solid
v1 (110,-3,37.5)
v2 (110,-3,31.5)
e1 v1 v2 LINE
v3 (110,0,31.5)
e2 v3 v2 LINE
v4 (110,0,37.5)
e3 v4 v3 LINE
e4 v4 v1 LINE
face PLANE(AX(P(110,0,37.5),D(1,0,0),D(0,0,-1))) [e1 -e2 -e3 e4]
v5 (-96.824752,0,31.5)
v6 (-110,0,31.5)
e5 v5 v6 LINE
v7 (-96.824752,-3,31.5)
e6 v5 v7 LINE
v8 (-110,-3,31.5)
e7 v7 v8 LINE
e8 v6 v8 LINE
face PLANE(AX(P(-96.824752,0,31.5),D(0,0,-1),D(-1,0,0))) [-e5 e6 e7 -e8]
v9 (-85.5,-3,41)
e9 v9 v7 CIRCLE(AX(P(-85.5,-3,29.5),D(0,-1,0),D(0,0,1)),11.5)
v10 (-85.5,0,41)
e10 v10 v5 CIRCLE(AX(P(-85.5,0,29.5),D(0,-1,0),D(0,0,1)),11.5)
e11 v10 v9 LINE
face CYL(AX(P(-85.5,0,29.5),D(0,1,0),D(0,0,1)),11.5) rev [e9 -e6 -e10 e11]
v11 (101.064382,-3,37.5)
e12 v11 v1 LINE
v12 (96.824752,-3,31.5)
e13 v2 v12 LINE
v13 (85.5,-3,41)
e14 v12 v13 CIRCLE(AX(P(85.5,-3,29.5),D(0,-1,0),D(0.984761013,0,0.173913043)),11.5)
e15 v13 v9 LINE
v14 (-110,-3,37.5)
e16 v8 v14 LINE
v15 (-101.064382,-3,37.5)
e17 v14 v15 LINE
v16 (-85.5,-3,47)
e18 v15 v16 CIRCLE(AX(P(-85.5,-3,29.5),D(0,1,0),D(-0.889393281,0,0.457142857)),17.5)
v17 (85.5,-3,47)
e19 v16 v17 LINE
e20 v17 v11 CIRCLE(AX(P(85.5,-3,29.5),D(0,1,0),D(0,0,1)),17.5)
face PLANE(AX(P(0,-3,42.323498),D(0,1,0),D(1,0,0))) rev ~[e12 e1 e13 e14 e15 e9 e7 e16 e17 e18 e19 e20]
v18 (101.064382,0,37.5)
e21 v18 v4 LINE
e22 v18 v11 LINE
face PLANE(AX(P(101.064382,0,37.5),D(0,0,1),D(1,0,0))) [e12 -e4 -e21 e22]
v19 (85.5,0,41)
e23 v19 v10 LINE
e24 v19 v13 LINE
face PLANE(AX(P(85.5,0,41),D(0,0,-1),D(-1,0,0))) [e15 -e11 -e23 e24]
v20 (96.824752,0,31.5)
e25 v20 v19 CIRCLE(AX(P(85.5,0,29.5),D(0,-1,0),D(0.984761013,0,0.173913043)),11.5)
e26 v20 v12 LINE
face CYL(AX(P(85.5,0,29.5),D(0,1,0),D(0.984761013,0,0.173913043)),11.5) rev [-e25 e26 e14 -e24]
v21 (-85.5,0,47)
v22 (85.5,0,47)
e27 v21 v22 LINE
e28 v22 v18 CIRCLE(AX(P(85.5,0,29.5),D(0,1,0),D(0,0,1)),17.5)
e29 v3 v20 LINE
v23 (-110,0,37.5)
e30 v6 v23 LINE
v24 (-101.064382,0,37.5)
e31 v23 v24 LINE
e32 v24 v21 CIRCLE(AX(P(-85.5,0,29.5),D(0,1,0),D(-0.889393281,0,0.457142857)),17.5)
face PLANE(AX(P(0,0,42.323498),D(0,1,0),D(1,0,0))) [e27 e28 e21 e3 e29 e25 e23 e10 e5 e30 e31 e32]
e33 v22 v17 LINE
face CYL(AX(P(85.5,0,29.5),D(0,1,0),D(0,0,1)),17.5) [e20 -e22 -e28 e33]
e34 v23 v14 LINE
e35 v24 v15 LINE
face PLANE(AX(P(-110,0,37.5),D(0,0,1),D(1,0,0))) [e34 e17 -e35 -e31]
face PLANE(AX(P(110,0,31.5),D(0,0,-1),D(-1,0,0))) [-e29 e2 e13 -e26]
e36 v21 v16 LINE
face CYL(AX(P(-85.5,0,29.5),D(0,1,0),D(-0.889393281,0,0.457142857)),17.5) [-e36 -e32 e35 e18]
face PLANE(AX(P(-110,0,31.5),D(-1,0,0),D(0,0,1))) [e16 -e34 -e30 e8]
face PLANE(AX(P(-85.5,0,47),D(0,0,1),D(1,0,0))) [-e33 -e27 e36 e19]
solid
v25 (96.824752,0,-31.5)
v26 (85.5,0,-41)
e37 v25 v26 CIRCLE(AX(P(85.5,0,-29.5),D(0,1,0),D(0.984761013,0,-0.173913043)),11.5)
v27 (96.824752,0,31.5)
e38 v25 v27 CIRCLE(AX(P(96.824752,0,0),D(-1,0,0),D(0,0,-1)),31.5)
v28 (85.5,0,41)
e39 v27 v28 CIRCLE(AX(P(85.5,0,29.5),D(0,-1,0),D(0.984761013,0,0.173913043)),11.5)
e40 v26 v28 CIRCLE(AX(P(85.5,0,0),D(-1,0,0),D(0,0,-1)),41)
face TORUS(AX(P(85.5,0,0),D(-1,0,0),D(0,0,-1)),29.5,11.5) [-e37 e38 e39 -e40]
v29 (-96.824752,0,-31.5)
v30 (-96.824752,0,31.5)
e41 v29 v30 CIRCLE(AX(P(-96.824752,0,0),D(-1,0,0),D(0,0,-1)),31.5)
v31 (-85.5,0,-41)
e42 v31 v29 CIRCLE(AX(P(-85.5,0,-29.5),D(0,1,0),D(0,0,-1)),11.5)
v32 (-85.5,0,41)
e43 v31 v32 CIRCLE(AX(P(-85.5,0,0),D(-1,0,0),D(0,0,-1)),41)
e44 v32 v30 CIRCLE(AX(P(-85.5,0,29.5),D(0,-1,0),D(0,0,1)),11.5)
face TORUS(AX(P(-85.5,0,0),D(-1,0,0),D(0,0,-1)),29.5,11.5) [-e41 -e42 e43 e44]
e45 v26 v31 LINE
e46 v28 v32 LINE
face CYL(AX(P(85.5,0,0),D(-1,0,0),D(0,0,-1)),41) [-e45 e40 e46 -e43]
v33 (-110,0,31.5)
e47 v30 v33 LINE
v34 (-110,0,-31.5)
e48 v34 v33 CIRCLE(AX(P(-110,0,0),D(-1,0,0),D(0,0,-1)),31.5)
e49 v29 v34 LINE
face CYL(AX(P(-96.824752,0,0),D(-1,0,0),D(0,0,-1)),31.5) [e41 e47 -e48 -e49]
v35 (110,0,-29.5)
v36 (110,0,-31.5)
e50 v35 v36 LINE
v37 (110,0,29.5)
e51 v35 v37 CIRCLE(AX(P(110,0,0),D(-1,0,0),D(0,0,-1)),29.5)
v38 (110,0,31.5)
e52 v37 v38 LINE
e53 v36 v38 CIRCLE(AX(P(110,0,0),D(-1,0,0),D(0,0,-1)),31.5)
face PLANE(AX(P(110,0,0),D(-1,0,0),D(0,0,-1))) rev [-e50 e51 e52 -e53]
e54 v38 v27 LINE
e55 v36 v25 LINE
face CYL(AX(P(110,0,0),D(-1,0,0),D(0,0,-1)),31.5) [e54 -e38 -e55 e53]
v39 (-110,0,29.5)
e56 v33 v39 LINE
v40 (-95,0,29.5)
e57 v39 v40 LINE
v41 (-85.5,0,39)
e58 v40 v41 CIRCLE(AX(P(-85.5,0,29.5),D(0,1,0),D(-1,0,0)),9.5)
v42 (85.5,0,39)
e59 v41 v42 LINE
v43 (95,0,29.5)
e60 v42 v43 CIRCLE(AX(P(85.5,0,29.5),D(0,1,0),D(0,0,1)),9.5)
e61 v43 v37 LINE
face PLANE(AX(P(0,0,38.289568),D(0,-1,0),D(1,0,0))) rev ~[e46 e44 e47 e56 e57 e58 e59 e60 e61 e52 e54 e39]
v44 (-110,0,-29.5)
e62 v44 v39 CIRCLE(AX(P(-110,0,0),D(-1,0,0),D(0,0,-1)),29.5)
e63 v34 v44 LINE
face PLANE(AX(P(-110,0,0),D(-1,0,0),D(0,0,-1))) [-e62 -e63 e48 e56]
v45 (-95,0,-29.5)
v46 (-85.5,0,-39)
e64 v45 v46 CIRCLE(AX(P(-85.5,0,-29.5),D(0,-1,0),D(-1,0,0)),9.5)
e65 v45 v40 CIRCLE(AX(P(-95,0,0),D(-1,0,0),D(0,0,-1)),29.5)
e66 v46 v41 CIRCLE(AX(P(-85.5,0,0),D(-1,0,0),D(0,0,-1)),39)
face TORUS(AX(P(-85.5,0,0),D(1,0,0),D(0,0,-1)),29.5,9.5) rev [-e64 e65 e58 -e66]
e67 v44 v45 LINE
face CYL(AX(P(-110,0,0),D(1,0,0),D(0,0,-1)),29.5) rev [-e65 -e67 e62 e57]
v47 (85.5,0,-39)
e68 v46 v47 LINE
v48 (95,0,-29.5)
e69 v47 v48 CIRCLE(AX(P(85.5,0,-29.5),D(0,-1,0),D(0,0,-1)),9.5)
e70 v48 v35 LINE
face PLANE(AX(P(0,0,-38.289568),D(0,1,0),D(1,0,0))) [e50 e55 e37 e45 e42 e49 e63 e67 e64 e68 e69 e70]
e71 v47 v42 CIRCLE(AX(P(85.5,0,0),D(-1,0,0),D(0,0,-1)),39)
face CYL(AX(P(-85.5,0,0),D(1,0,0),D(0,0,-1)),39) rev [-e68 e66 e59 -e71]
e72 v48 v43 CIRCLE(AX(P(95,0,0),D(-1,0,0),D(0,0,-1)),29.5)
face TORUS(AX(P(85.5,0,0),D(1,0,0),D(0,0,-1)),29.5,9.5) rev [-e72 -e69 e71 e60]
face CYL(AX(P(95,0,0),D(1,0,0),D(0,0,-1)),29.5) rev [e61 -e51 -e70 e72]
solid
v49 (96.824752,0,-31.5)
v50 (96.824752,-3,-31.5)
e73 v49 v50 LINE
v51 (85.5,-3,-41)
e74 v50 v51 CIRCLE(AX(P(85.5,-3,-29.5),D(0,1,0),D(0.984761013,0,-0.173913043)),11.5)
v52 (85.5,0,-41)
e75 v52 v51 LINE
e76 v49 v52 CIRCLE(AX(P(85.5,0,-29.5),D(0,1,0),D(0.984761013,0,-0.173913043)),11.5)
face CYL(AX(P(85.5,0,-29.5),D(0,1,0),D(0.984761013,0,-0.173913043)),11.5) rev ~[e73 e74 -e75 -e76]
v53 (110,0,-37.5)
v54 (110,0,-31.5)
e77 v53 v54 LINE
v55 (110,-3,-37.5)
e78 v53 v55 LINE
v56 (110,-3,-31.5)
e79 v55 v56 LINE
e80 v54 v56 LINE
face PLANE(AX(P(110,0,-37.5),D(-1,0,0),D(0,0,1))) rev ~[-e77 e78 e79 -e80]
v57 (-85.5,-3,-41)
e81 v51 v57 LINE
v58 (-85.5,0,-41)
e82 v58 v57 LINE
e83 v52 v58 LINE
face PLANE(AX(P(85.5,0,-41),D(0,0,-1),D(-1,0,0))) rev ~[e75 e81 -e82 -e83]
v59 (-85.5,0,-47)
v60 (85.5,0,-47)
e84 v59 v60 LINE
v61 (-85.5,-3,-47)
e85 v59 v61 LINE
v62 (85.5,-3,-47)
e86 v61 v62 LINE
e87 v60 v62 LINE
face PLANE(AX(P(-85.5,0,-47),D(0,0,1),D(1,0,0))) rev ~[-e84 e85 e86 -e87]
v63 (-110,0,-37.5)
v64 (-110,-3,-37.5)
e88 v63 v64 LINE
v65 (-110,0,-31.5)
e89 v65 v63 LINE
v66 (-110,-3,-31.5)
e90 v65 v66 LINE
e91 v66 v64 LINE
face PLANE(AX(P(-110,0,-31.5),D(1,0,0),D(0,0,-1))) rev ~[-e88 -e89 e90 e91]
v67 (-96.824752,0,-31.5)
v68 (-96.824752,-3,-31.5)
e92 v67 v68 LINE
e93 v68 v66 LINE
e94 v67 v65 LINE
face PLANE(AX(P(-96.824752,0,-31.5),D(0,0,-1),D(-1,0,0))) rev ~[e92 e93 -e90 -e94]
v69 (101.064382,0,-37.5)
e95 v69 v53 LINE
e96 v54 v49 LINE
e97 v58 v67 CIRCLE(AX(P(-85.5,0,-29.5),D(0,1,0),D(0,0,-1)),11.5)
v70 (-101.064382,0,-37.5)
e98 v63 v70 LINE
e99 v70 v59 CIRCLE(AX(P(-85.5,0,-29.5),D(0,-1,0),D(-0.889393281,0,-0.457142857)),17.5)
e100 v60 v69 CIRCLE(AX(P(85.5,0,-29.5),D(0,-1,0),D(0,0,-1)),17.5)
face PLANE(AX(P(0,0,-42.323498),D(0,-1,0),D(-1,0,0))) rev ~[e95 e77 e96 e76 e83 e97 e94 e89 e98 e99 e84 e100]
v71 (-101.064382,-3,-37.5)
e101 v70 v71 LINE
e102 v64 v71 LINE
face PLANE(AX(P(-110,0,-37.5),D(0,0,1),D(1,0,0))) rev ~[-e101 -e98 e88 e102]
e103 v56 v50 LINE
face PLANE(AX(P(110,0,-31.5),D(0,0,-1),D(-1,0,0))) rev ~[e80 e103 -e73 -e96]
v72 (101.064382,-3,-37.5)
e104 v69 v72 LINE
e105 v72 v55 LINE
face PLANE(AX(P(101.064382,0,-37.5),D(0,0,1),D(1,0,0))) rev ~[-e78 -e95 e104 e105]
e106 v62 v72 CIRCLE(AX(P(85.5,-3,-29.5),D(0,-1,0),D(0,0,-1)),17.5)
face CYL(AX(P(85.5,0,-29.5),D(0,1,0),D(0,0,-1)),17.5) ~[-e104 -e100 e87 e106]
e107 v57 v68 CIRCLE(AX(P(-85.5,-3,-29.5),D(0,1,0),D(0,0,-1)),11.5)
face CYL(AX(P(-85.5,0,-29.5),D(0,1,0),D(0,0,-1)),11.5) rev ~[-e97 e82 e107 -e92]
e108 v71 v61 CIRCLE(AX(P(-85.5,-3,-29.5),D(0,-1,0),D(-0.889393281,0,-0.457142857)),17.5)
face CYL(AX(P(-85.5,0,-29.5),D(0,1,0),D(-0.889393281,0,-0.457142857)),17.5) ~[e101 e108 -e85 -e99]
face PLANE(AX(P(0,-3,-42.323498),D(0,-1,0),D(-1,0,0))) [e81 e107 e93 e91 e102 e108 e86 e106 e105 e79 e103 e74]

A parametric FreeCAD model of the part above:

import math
import FreeCAD as App
import Part
import Sketcher

V = App.Vector
Q = App.Units.Quantity

doc = App.newDocument("Part")
params = doc.addObject("Spreadsheet::Sheet", "Params")
for row, (alias, value) in enumerate([
    ("sketch1_radius", "9.5 mm"),
    ("sketch1_radius2", "11.5 mm"),
    ("sketch1_width", "15 mm"),
    ("sketch1_width2", "171 mm"),
    ("sketch1_height", "2 mm"),
    ("revolution_angle", "180 deg"),
    ("sketch2_radius", "11.5 mm"),
    ("sketch2_radius2", "17.5 mm"),
    ("sketch2_width", "171 mm"),
    ("sketch2_height", "6 mm"),
    ("pad1_length", "3 mm"),
    ("sketch3_radius", "11.5 mm"),
    ("sketch3_radius2", "17.5 mm"),
    ("sketch3_width", "171 mm"),
    ("sketch3_height", "6 mm"),
    ("pad2_length", "3 mm"),
], start=1):
    params.set(f"A{row}", alias)
    params.set(f"B{row}", "=" + value)
    params.setAlias(f"B{row}", alias)

body = doc.addObject("PartDesign::Body", "Body")

sketch1 = body.newObject("Sketcher::SketchObject", "Sketch")
sketch1.AttachmentSupport = (doc.getObject("XZ_Plane"), [""])
sketch1.MapMode = "FlatFace"
sketch1.addGeometry([
    Part.LineSegment(V(-110, -29.5, 0), V(-95, -29.5, 0)),
    Part.ArcOfCircle(Part.Circle(V(-85.5, -29.5, 0), V(0, 0, 1), 9.5), math.radians(-180), math.radians(-90)),
    Part.LineSegment(V(-85.5, -39, 0), V(85.5, -39, 0)),
    Part.ArcOfCircle(Part.Circle(V(85.5, -29.5, 0), V(0, 0, 1), 9.5), math.radians(-90), math.radians(0)),
    Part.LineSegment(V(95, -29.5, 0), V(110, -29.5, 0)),
    Part.LineSegment(V(110, -29.5, 0), V(110, -31.5, 0)),
    Part.LineSegment(V(110, -31.5, 0), V(96.824752, -31.5, 0)),
    Part.ArcOfCircle(Part.Circle(V(85.5, -29.5, 0), V(0, 0, 1), 11.5), math.radians(-90), math.radians(-10.01541)),
    Part.LineSegment(V(85.5, -41, 0), V(-85.5, -41, 0)),
    Part.ArcOfCircle(Part.Circle(V(-85.5, -29.5, 0), V(0, 0, 1), 11.5), math.radians(-169.98459), math.radians(-90)),
    Part.LineSegment(V(-96.824752, -31.5, 0), V(-110, -31.5, 0)),
    Part.LineSegment(V(-110, -31.5, 0), V(-110, -29.5, 0)),
], False)
sketch1.addConstraint([
    Sketcher.Constraint("Coincident", 0, 2, 1, 1),
    Sketcher.Constraint("Tangent", 1, 2, 2, 1),
    Sketcher.Constraint("Tangent", 2, 2, 3, 1),
    Sketcher.Constraint("Coincident", 3, 2, 4, 1),
    Sketcher.Constraint("Coincident", 4, 2, 5, 1),
    Sketcher.Constraint("Coincident", 5, 2, 6, 1),
    Sketcher.Constraint("Coincident", 6, 2, 7, 2),
    Sketcher.Constraint("Tangent", 7, 1, 8, 1),
    Sketcher.Constraint("Tangent", 8, 2, 9, 2),
    Sketcher.Constraint("Coincident", 9, 1, 10, 1),
    Sketcher.Constraint("Coincident", 10, 2, 11, 1),
    Sketcher.Constraint("Coincident", 11, 2, 0, 1),
    Sketcher.Constraint("Horizontal", 0),
    Sketcher.Constraint("Horizontal", 2),
    Sketcher.Constraint("Horizontal", 4),
    Sketcher.Constraint("Vertical", 5),
    Sketcher.Constraint("Horizontal", 6),
    Sketcher.Constraint("Horizontal", 8),
    Sketcher.Constraint("Horizontal", 10),
    Sketcher.Constraint("Vertical", 11),
    Sketcher.Constraint("Coincident", 7, 3, 3, 3),
    Sketcher.Constraint("Coincident", 9, 3, 1, 3),
    Sketcher.Constraint("Equal", 1, 3),
    Sketcher.Constraint("Symmetric", 0, 2, 3, 2, -2),
    Sketcher.Constraint("Symmetric", 5, 2, 10, 2, -2),
    Sketcher.Constraint("Horizontal", 9, 3, 0, 2),
    Sketcher.Constraint("Radius", 1, Q("9.5 mm")),
    Sketcher.Constraint("Radius", 7, Q("11.5 mm")),
    Sketcher.Constraint("DistanceX", 0, 1, 0, 2, Q("15 mm")),
    Sketcher.Constraint("DistanceX", 2, 1, 2, 2, Q("171 mm")),
    Sketcher.Constraint("DistanceY", 5, 2, 5, 1, Q("2 mm")),
    Sketcher.Constraint("DistanceY", 1, 2, -1, 1, Q("39 mm")),
])
sketch1.setExpression("Constraints[26]", "Params.sketch1_radius")
sketch1.setExpression("Constraints[27]", "Params.sketch1_radius2")
sketch1.setExpression("Constraints[28]", "Params.sketch1_width")
sketch1.setExpression("Constraints[29]", "Params.sketch1_width2")
sketch1.setExpression("Constraints[30]", "Params.sketch1_height")
revolution = body.newObject("PartDesign::Revolution", "Revolution")
revolution.Profile = sketch1
revolution.ReferenceAxis = (sketch1, ["H_Axis"])
revolution.setExpression("Angle", "Params.revolution_angle")
revolution.Reversed = True
body2 = doc.addObject("PartDesign::Body", "Body001")

sketch2 = body2.newObject("Sketcher::SketchObject", "Sketch001")
sketch2.AttachmentSupport = (doc.getObject("XZ_Plane001"), [""])
sketch2.MapMode = "FlatFace"
sketch2.addGeometry([
    Part.LineSegment(V(-110, -31.5, 0), V(-96.824752, -31.5, 0)),
    Part.ArcOfCircle(Part.Circle(V(-85.5, -29.5, 0), V(0, 0, 1), 11.5), math.radians(-169.98459), math.radians(-90)),
    Part.LineSegment(V(-85.5, -41, 0), V(85.5, -41, 0)),
    Part.ArcOfCircle(Part.Circle(V(85.5, -29.5, 0), V(0, 0, 1), 11.5), math.radians(-90), math.radians(-10.01541)),
    Part.LineSegment(V(96.824752, -31.5, 0), V(110, -31.5, 0)),
    Part.LineSegment(V(110, -31.5, 0), V(110, -37.5, 0)),
    Part.LineSegment(V(110, -37.5, 0), V(101.064382, -37.5, 0)),
    Part.ArcOfCircle(Part.Circle(V(85.5, -29.5, 0), V(0, 0, 1), 17.5), math.radians(-90), math.radians(-27.202894)),
    Part.LineSegment(V(85.5, -47, 0), V(-85.5, -47, 0)),
    Part.ArcOfCircle(Part.Circle(V(-85.5, -29.5, 0), V(0, 0, 1), 17.5), math.radians(-152.797106), math.radians(-90)),
    Part.LineSegment(V(-101.064382, -37.5, 0), V(-110, -37.5, 0)),
    Part.LineSegment(V(-110, -37.5, 0), V(-110, -31.5, 0)),
], False)
sketch2.addConstraint([
    Sketcher.Constraint("Coincident", 0, 2, 1, 1),
    Sketcher.Constraint("Tangent", 1, 2, 2, 1),
    Sketcher.Constraint("Tangent", 2, 2, 3, 1),
    Sketcher.Constraint("Coincident", 3, 2, 4, 1),
    Sketcher.Constraint("Coincident", 4, 2, 5, 1),
    Sketcher.Constraint("Coincident", 5, 2, 6, 1),
    Sketcher.Constraint("Coincident", 6, 2, 7, 2),
    Sketcher.Constraint("Tangent", 7, 1, 8, 1),
    Sketcher.Constraint("Tangent", 8, 2, 9, 2),
    Sketcher.Constraint("Coincident", 9, 1, 10, 1),
    Sketcher.Constraint("Coincident", 10, 2, 11, 1),
    Sketcher.Constraint("Coincident", 11, 2, 0, 1),
    Sketcher.Constraint("Horizontal", 0),
    Sketcher.Constraint("Horizontal", 2),
    Sketcher.Constraint("Horizontal", 4),
    Sketcher.Constraint("Vertical", 5),
    Sketcher.Constraint("Horizontal", 6),
    Sketcher.Constraint("Horizontal", 8),
    Sketcher.Constraint("Horizontal", 10),
    Sketcher.Constraint("Vertical", 11),
    Sketcher.Constraint("Coincident", 7, 3, 3, 3),
    Sketcher.Constraint("Coincident", 9, 3, 1, 3),
    Sketcher.Constraint("Equal", 1, 3),
    Sketcher.Constraint("Symmetric", 0, 2, 3, 2, -2),
    Sketcher.Constraint("Symmetric", 5, 2, 10, 2, -2),
    Sketcher.Constraint("Radius", 1, Q("11.5 mm")),
    Sketcher.Constraint("Radius", 7, Q("17.5 mm")),
    Sketcher.Constraint("DistanceX", 2, 1, 2, 2, Q("171 mm")),
    Sketcher.Constraint("DistanceY", 5, 2, 5, 1, Q("6 mm")),
    Sketcher.Constraint("DistanceY", 1, 2, -1, 1, Q("41 mm")),
    Sketcher.Constraint("DistanceX", -1, 1, 4, 2, Q("110 mm")),
    Sketcher.Constraint("DistanceY", 0, 2, 1, 3, Q("2 mm")),
])
sketch2.setExpression("Constraints[25]", "Params.sketch2_radius")
sketch2.setExpression("Constraints[26]", "Params.sketch2_radius2")
sketch2.setExpression("Constraints[27]", "Params.sketch2_width")
sketch2.setExpression("Constraints[28]", "Params.sketch2_height")
pad1 = body2.newObject("PartDesign::Pad", "Pad")
pad1.Profile = sketch2
pad1.setExpression("Length", "Params.pad1_length")
body3 = doc.addObject("PartDesign::Body", "Body002")

sketch3 = body3.newObject("Sketcher::SketchObject", "Sketch002")
sketch3.AttachmentSupport = (doc.getObject("XZ_Plane002"), [""])
sketch3.MapMode = "FlatFace"
sketch3.addGeometry([
    Part.LineSegment(V(110, 37.5, 0), V(110, 31.5, 0)),
    Part.LineSegment(V(110, 31.5, 0), V(96.824752, 31.5, 0)),
    Part.ArcOfCircle(Part.Circle(V(85.5, 29.5, 0), V(0, 0, 1), 11.5), math.radians(10.01541), math.radians(90)),
    Part.LineSegment(V(85.5, 41, 0), V(-85.5, 41, 0)),
    Part.ArcOfCircle(Part.Circle(V(-85.5, 29.5, 0), V(0, 0, 1), 11.5), math.radians(90), math.radians(169.98459)),
    Part.LineSegment(V(-96.824752, 31.5, 0), V(-110, 31.5, 0)),
    Part.LineSegment(V(-110, 31.5, 0), V(-110, 37.5, 0)),
    Part.LineSegment(V(-110, 37.5, 0), V(-101.064382, 37.5, 0)),
    Part.ArcOfCircle(Part.Circle(V(-85.5, 29.5, 0), V(0, 0, 1), 17.5), math.radians(90), math.radians(152.797106)),
    Part.LineSegment(V(-85.5, 47, 0), V(85.5, 47, 0)),
    Part.ArcOfCircle(Part.Circle(V(85.5, 29.5, 0), V(0, 0, 1), 17.5), math.radians(27.202894), math.radians(90)),
    Part.LineSegment(V(101.064382, 37.5, 0), V(110, 37.5, 0)),
], False)
sketch3.addConstraint([
    Sketcher.Constraint("Coincident", 0, 2, 1, 1),
    Sketcher.Constraint("Coincident", 1, 2, 2, 1),
    Sketcher.Constraint("Tangent", 2, 2, 3, 1),
    Sketcher.Constraint("Tangent", 3, 2, 4, 1),
    Sketcher.Constraint("Coincident", 4, 2, 5, 1),
    Sketcher.Constraint("Coincident", 5, 2, 6, 1),
    Sketcher.Constraint("Coincident", 6, 2, 7, 1),
    Sketcher.Constraint("Coincident", 7, 2, 8, 2),
    Sketcher.Constraint("Tangent", 8, 1, 9, 1),
    Sketcher.Constraint("Tangent", 9, 2, 10, 2),
    Sketcher.Constraint("Coincident", 10, 1, 11, 1),
    Sketcher.Constraint("Coincident", 11, 2, 0, 1),
    Sketcher.Constraint("Vertical", 0),
    Sketcher.Constraint("Horizontal", 1),
    Sketcher.Constraint("Horizontal", 3),
    Sketcher.Constraint("Horizontal", 5),
    Sketcher.Constraint("Vertical", 6),
    Sketcher.Constraint("Horizontal", 7),
    Sketcher.Constraint("Horizontal", 9),
    Sketcher.Constraint("Horizontal", 11),
    Sketcher.Constraint("Coincident", 8, 3, 4, 3),
    Sketcher.Constraint("Coincident", 10, 3, 2, 3),
    Sketcher.Constraint("Equal", 2, 4),
    Sketcher.Constraint("Symmetric", 1, 2, 4, 2, -2),
    Sketcher.Constraint("Symmetric", 6, 2, 11, 2, -2),
    Sketcher.Constraint("Radius", 2, Q("11.5 mm")),
    Sketcher.Constraint("Radius", 8, Q("17.5 mm")),
    Sketcher.Constraint("DistanceX", 3, 2, 3, 1, Q("171 mm")),
    Sketcher.Constraint("DistanceY", 0, 2, 0, 1, Q("6 mm")),
    Sketcher.Constraint("DistanceX", -1, 1, 0, 2, Q("110 mm")),
    Sketcher.Constraint("DistanceY", -1, 1, 2, 2, Q("41 mm")),
    Sketcher.Constraint("DistanceY", 2, 3, 0, 2, Q("2 mm")),
])
sketch3.setExpression("Constraints[25]", "Params.sketch3_radius")
sketch3.setExpression("Constraints[26]", "Params.sketch3_radius2")
sketch3.setExpression("Constraints[27]", "Params.sketch3_width")
sketch3.setExpression("Constraints[28]", "Params.sketch3_height")
pad2 = body3.newObject("PartDesign::Pad", "Pad001")
pad2.Profile = sketch3
pad2.setExpression("Length", "Params.pad2_length")

doc.recompute()
